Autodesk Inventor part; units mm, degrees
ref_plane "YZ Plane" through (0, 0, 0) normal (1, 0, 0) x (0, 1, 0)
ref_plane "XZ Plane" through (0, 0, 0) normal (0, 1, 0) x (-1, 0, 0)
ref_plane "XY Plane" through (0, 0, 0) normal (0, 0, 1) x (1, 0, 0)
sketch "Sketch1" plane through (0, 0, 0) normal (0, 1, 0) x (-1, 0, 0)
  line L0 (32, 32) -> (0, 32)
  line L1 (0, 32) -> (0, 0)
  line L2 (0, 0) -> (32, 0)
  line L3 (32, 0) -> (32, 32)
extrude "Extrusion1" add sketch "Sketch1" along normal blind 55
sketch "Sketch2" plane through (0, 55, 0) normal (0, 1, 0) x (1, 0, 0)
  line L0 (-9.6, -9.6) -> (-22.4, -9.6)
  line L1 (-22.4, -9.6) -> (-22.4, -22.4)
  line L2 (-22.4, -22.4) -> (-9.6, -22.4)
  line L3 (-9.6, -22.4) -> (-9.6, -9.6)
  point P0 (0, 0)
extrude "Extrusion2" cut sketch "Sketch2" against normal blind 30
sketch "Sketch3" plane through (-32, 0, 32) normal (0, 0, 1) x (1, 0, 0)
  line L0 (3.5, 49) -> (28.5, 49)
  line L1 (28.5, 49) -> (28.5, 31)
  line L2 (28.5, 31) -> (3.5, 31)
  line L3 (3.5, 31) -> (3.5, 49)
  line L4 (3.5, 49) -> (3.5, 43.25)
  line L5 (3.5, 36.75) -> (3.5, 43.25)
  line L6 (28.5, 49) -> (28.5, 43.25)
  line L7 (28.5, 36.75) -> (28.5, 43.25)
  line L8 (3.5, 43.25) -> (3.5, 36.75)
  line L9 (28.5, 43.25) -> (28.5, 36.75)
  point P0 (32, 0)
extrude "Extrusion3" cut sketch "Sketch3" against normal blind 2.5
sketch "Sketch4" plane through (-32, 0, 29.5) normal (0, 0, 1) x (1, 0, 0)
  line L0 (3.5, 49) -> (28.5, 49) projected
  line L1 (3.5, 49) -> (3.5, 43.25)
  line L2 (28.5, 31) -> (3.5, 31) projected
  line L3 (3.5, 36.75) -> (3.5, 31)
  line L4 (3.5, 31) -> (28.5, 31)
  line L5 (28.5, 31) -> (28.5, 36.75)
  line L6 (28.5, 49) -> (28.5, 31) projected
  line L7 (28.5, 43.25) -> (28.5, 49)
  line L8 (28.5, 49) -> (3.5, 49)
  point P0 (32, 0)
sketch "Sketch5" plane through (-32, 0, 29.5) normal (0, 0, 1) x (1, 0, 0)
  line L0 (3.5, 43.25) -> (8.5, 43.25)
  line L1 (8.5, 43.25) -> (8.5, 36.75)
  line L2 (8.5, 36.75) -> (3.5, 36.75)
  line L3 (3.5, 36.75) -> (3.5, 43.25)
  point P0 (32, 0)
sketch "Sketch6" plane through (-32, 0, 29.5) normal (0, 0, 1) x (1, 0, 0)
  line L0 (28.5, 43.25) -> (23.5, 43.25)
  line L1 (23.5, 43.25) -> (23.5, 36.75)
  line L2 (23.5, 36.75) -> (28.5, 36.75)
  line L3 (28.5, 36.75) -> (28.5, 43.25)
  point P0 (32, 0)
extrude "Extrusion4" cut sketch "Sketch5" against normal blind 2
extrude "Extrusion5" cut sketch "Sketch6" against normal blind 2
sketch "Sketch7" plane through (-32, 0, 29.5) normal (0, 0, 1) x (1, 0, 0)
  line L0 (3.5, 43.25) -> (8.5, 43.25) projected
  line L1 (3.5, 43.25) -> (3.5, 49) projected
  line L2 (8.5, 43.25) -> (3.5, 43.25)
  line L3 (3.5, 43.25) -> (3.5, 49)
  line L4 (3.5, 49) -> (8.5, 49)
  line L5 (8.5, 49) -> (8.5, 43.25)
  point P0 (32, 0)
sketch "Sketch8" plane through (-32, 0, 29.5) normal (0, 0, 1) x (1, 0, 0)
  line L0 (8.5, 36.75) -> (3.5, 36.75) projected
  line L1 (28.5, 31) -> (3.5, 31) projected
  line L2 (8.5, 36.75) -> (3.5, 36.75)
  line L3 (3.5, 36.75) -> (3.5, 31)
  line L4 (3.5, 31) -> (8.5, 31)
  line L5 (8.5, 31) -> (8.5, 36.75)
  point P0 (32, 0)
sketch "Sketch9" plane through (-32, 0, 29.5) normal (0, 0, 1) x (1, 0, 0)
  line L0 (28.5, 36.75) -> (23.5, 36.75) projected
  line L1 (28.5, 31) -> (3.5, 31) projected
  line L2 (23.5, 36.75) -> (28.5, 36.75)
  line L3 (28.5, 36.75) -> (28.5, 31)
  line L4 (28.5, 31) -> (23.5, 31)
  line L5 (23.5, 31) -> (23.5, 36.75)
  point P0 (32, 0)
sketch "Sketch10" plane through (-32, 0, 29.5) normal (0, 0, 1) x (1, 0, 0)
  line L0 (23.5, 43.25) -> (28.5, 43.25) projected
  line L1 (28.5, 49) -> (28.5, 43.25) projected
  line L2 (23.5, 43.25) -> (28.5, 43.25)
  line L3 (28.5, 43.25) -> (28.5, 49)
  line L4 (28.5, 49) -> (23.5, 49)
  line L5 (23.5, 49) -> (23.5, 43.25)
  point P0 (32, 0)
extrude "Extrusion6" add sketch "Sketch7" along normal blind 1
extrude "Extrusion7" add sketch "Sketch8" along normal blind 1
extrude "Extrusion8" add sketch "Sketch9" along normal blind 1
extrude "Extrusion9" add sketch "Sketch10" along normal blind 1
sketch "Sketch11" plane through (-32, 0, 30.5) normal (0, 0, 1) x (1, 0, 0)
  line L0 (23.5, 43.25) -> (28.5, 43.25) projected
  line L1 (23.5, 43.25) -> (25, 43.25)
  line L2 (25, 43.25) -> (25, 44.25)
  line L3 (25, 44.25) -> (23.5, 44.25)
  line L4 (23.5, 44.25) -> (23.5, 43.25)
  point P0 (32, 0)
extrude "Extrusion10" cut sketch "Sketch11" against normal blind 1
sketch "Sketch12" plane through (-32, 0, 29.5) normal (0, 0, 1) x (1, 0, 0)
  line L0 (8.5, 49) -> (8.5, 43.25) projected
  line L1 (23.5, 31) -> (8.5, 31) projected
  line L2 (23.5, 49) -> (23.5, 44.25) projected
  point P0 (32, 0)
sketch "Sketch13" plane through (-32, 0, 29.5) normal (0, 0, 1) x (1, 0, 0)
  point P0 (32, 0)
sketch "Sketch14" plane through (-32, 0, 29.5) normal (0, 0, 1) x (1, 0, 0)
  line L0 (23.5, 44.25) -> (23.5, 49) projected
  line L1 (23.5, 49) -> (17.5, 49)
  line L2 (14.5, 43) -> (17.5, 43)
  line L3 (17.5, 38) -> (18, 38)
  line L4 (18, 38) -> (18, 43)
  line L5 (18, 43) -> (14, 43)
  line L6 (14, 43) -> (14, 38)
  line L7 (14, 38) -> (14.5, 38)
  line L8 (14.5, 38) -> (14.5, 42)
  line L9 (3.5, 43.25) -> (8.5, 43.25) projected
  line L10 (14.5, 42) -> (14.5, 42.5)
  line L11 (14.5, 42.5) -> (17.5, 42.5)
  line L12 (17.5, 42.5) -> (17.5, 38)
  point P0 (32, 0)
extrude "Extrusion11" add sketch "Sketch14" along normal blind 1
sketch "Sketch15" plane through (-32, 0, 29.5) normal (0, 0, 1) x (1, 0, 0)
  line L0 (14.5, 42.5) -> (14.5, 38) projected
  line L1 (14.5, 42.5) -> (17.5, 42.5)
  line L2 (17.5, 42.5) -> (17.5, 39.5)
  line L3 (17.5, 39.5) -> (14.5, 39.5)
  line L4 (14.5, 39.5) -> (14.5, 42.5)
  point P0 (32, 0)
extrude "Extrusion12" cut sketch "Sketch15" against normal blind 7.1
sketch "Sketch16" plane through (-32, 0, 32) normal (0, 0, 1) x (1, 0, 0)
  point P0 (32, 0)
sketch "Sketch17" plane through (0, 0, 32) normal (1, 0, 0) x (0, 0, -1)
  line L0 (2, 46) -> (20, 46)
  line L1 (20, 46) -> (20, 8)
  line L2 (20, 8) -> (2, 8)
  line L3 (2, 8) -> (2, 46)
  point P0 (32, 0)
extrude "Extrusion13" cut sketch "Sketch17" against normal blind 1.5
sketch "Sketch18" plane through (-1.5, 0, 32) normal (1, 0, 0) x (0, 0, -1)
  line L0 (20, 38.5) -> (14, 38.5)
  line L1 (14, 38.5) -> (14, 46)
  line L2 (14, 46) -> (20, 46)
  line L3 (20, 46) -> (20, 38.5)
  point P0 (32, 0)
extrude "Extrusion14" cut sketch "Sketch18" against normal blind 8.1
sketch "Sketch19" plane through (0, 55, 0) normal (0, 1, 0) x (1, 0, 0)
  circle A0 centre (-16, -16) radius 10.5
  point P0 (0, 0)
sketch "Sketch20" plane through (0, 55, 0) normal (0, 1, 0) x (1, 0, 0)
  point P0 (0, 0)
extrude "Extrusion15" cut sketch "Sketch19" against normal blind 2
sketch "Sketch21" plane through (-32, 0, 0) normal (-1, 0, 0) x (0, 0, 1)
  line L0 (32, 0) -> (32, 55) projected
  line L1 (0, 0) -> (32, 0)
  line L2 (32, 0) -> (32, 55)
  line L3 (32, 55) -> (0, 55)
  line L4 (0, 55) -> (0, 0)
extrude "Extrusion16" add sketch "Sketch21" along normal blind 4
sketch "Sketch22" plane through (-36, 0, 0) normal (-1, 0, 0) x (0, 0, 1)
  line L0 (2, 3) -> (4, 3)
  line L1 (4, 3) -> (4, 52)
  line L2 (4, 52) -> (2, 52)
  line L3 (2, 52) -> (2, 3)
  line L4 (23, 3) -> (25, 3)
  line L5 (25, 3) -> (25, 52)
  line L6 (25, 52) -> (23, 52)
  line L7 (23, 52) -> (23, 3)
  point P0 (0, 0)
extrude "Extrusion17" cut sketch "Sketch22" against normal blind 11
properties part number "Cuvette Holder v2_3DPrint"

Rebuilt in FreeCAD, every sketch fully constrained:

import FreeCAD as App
import Part
import Sketcher

V = App.Vector


def add_polygon(sketch, points):
    """Adds a closed chain of lines whose ends are joined by coincident constraints."""
    first, n = sketch.GeometryCount, len(points)
    for a, b in zip(points, points[1:] + points[:1]):
        sketch.addGeometry(Part.LineSegment(App.Vector(*a, 0), App.Vector(*b, 0)), False)
    for i in range(n):
        sketch.addConstraint(Sketcher.Constraint("Coincident", first + i, 2, first + (i + 1) % n, 1))

doc = App.newDocument("Part")
body = doc.addObject("PartDesign::Body", "Body")

sketch1 = body.newObject("Sketcher::SketchObject", "Sketch")
sketch1.AttachmentSupport = (doc.getObject("XZ_Plane"), [""])
sketch1.MapMode = "FlatFace"
add_polygon(sketch1, [(-32, 0), (-32, 32), (0, 32), (0, 0)])
sketch1.addConstraint(Sketcher.Constraint("Vertical", 0))
sketch1.addConstraint(Sketcher.Constraint("Horizontal", 1))
sketch1.addConstraint(Sketcher.Constraint("Vertical", 2))
sketch1.addConstraint(Sketcher.Constraint("Horizontal", 3))
sketch1.addConstraint(Sketcher.Constraint("Coincident", 2, 2, -1, 1))
sketch1.addConstraint(Sketcher.Constraint("Equal", 3, 0))
sketch1.addConstraint(Sketcher.Constraint("DistanceX", 1, 1, 1, 2, 32.0))
pad1 = body.newObject("PartDesign::Pad", "Pad")
pad1.Profile = sketch1
pad1.Length = 55
pad1.Reversed = True

sketch2 = body.newObject("Sketcher::SketchObject", "Sketch001")
sketch2.AttachmentSupport = (doc.getObject("XZ_Plane"), [""])
sketch2.MapMode = "FlatFace"
sketch2.AttachmentOffset = App.Placement(V(0, 0, -55), App.Rotation())
add_polygon(sketch2, [(-10, 22), (-10, 10), (-22, 10), (-22, 22)])
sketch2.addConstraint(Sketcher.Constraint("Vertical", 0))
sketch2.addConstraint(Sketcher.Constraint("Horizontal", 1))
sketch2.addConstraint(Sketcher.Constraint("Vertical", 2))
sketch2.addConstraint(Sketcher.Constraint("Horizontal", 3))
sketch2.addConstraint(Sketcher.Constraint("Equal", 3, 0))
sketch2.addConstraint(Sketcher.Constraint("DistanceX", 1, 2, 1, 1, 12.8))
sketch2.addConstraint(Sketcher.Constraint("DistanceX", 0, 2, -1, 1, 9.6))
sketch2.addConstraint(Sketcher.Constraint("DistanceY", -1, 1, 0, 2, 9.6))
pocket1 = body.newObject("PartDesign::Pocket", "Pocket")
pocket1.Profile = sketch2
pocket1.Length = 30
pocket1.Reversed = True

sketch3 = body.newObject("Sketcher::SketchObject", "Sketch002")
sketch3.AttachmentSupport = (doc.getObject("XY_Plane"), [""])
sketch3.MapMode = "FlatFace"
sketch3.AttachmentOffset = App.Placement(V(0, 0, 32), App.Rotation())
add_polygon(sketch3, [(-4, 49), (-28, 49), (-28, 31), (-4, 31)])
sketch3.addConstraint(Sketcher.Constraint("Horizontal", 0))
sketch3.addConstraint(Sketcher.Constraint("Vertical", 1))
sketch3.addConstraint(Sketcher.Constraint("Horizontal", 2))
sketch3.addConstraint(Sketcher.Constraint("Vertical", 3))
sketch3.addConstraint(Sketcher.Constraint("DistanceX", 0, 2, 0, 1, 25.0))
sketch3.addConstraint(Sketcher.Constraint("DistanceY", 1, 2, 1, 1, 18.0))
sketch3.addConstraint(Sketcher.Constraint("DistanceY", -1, 1, 0, 2, 49.0))
sketch3.addConstraint(Sketcher.Constraint("DistanceX", 0, 2, -1, 1, 28.5))
pocket2 = body.newObject("PartDesign::Pocket", "Pocket001")
pocket2.Profile = sketch3
pocket2.Length = 2.5

sketch4 = body.newObject("Sketcher::SketchObject", "Sketch003")
sketch4.AttachmentSupport = (doc.getObject("XY_Plane"), [""])
sketch4.MapMode = "FlatFace"
sketch4.AttachmentOffset = App.Placement(V(0, 0, 29.5), App.Rotation())
add_polygon(sketch4, [(-24, 43), (-28, 43), (-28, 37), (-24, 37)])
sketch4.addConstraint(Sketcher.Constraint("Horizontal", 0))
sketch4.addConstraint(Sketcher.Constraint("Vertical", 1))
sketch4.addConstraint(Sketcher.Constraint("Horizontal", 2))
sketch4.addConstraint(Sketcher.Constraint("Vertical", 3))
sketch4.addConstraint(Sketcher.Constraint("DistanceX", 0, 2, 0, 1, 5.0))
sketch4.addConstraint(Sketcher.Constraint("DistanceY", 1, 2, 1, 1, 6.5))
sketch4.addConstraint(Sketcher.Constraint("DistanceX", 0, 2, -1, 1, 28.5))
sketch4.addConstraint(Sketcher.Constraint("DistanceY", -1, 1, 0, 2, 43.25))
pocket3 = body.newObject("PartDesign::Pocket", "Pocket002")
pocket3.Profile = sketch4
pocket3.Length = 2

sketch5 = body.newObject("Sketcher::SketchObject", "Sketch004")
sketch5.AttachmentSupport = (doc.getObject("XY_Plane"), [""])
sketch5.MapMode = "FlatFace"
sketch5.AttachmentOffset = App.Placement(V(0, 0, 29.5), App.Rotation())
add_polygon(sketch5, [(-4, 37), (-4, 43), (-8, 43), (-8, 37)])
sketch5.addConstraint(Sketcher.Constraint("Vertical", 0))
sketch5.addConstraint(Sketcher.Constraint("Horizontal", 1))
sketch5.addConstraint(Sketcher.Constraint("Vertical", 2))
sketch5.addConstraint(Sketcher.Constraint("Horizontal", 3))
sketch5.addConstraint(Sketcher.Constraint("DistanceX", 1, 2, 1, 1, 5.0))
sketch5.addConstraint(Sketcher.Constraint("DistanceY", 0, 1, 0, 2, 6.5))
sketch5.addConstraint(Sketcher.Constraint("DistanceX", 0, 2, -1, 1, 3.5))
sketch5.addConstraint(Sketcher.Constraint("DistanceY", -1, 1, 0, 2, 43.25))
pocket4 = body.newObject("PartDesign::Pocket", "Pocket003")
pocket4.Profile = sketch5
pocket4.Length = 2

sketch6 = body.newObject("Sketcher::SketchObject", "Sketch005")
sketch6.AttachmentSupport = (doc.getObject("XY_Plane"), [""])
sketch6.MapMode = "FlatFace"
sketch6.AttachmentOffset = App.Placement(V(0, 0, 29.5), App.Rotation())
add_polygon(sketch6, [(-28, 49), (-28, 43), (-24, 43), (-24, 49)])
sketch6.addConstraint(Sketcher.Constraint("Vertical", 0))
sketch6.addConstraint(Sketcher.Constraint("Horizontal", 1))
sketch6.addConstraint(Sketcher.Constraint("Vertical", 2))
sketch6.addConstraint(Sketcher.Constraint("Horizontal", 3))
sketch6.addConstraint(Sketcher.Constraint("DistanceX", 1, 1, 1, 2, 5.0))
sketch6.addConstraint(Sketcher.Constraint("DistanceY", -1, 1, 2, 2, 49.0))
sketch6.addConstraint(Sketcher.Constraint("DistanceY", 0, 2, 0, 1, 5.75))
sketch6.addConstraint(Sketcher.Constraint("DistanceX", 0, 2, -1, 1, 28.5))
pad2 = body.newObject("PartDesign::Pad", "Pad001")
pad2.Profile = sketch6
pad2.Length = 1

sketch7 = body.newObject("Sketcher::SketchObject", "Sketch006")
sketch7.AttachmentSupport = (doc.getObject("XY_Plane"), [""])
sketch7.MapMode = "FlatFace"
sketch7.AttachmentOffset = App.Placement(V(0, 0, 29.5), App.Rotation())
add_polygon(sketch7, [(-24, 31), (-24, 37), (-28, 37), (-28, 31)])
sketch7.addConstraint(Sketcher.Constraint("Vertical", 0))
sketch7.addConstraint(Sketcher.Constraint("Horizontal", 1))
sketch7.addConstraint(Sketcher.Constraint("Vertical", 2))
sketch7.addConstraint(Sketcher.Constraint("Horizontal", 3))
sketch7.addConstraint(Sketcher.Constraint("DistanceX", 1, 2, 1, 1, 5.0))
sketch7.addConstraint(Sketcher.Constraint("DistanceY", -1, 1, 2, 2, 31.0))
sketch7.addConstraint(Sketcher.Constraint("DistanceY", 0, 1, 0, 2, 5.75))
sketch7.addConstraint(Sketcher.Constraint("DistanceX", 0, 2, -1, 1, 23.5))
pad3 = body.newObject("PartDesign::Pad", "Pad002")
pad3.Profile = sketch7
pad3.Length = 1

sketch8 = body.newObject("Sketcher::SketchObject", "Sketch007")
sketch8.AttachmentSupport = (doc.getObject("XY_Plane"), [""])
sketch8.MapMode = "FlatFace"
sketch8.AttachmentOffset = App.Placement(V(0, 0, 29.5), App.Rotation())
add_polygon(sketch8, [(-4, 31), (-4, 37), (-8, 37), (-8, 31)])
sketch8.addConstraint(Sketcher.Constraint("Vertical", 0))
sketch8.addConstraint(Sketcher.Constraint("Horizontal", 1))
sketch8.addConstraint(Sketcher.Constraint("Vertical", 2))
sketch8.addConstraint(Sketcher.Constraint("Horizontal", 3))
sketch8.addConstraint(Sketcher.Constraint("DistanceX", 1, 2, 1, 1, 5.0))
sketch8.addConstraint(Sketcher.Constraint("DistanceY", -1, 1, 2, 2, 31.0))
sketch8.addConstraint(Sketcher.Constraint("DistanceY", 0, 1, 0, 2, 5.75))
sketch8.addConstraint(Sketcher.Constraint("DistanceX", 0, 2, -1, 1, 3.5))
pad4 = body.newObject("PartDesign::Pad", "Pad003")
pad4.Profile = sketch8
pad4.Length = 1

sketch9 = body.newObject("Sketcher::SketchObject", "Sketch008")
sketch9.AttachmentSupport = (doc.getObject("XY_Plane"), [""])
sketch9.MapMode = "FlatFace"
sketch9.AttachmentOffset = App.Placement(V(0, 0, 29.5), App.Rotation())
add_polygon(sketch9, [(-8, 49), (-8, 43), (-4, 43), (-4, 49)])
sketch9.addConstraint(Sketcher.Constraint("Vertical", 0))
sketch9.addConstraint(Sketcher.Constraint("Horizontal", 1))
sketch9.addConstraint(Sketcher.Constraint("Vertical", 2))
sketch9.addConstraint(Sketcher.Constraint("Horizontal", 3))
sketch9.addConstraint(Sketcher.Constraint("DistanceX", 1, 1, 1, 2, 5.0))
sketch9.addConstraint(Sketcher.Constraint("DistanceY", -1, 1, 2, 2, 49.0))
sketch9.addConstraint(Sketcher.Constraint("DistanceY", 0, 2, 0, 1, 5.75))
sketch9.addConstraint(Sketcher.Constraint("DistanceX", 0, 2, -1, 1, 8.5))
pad5 = body.newObject("PartDesign::Pad", "Pad004")
pad5.Profile = sketch9
pad5.Length = 1

sketch10 = body.newObject("Sketcher::SketchObject", "Sketch009")
sketch10.AttachmentSupport = (doc.getObject("XY_Plane"), [""])
sketch10.MapMode = "FlatFace"
sketch10.AttachmentOffset = App.Placement(V(0, 0, 30.5), App.Rotation())
add_polygon(sketch10, [(-8.5, 44.2), (-8.5, 43.2), (-7, 43.2), (-7, 44.2)])
sketch10.addConstraint(Sketcher.Constraint("Vertical", 0))
sketch10.addConstraint(Sketcher.Constraint("Horizontal", 1))
sketch10.addConstraint(Sketcher.Constraint("Vertical", 2))
sketch10.addConstraint(Sketcher.Constraint("Horizontal", 3))
sketch10.addConstraint(Sketcher.Constraint("DistanceY", 0, 2, 0, 1, 1.0))
sketch10.addConstraint(Sketcher.Constraint("DistanceX", 1, 1, 1, 2, 1.5))
sketch10.addConstraint(Sketcher.Constraint("DistanceX", 1, 2, -1, 1, 7.0))
sketch10.addConstraint(Sketcher.Constraint("DistanceY", -1, 1, 0, 2, 43.25))
pocket5 = body.newObject("PartDesign::Pocket", "Pocket004")
pocket5.Profile = sketch10
pocket5.Length = 1

sketch11 = body.newObject("Sketcher::SketchObject", "Sketch010")
sketch11.AttachmentSupport = (doc.getObject("XY_Plane"), [""])
sketch11.MapMode = "FlatFace"
sketch11.AttachmentOffset = App.Placement(V(0, 0, 29.5), App.Rotation())
add_polygon(sketch11, [(-14, 43), (-18, 43), (-18, 38), (-17.5, 38), (-17.5, 42.5), (-14.5, 42.5), (-14.5, 38), (-14, 38)])
sketch11.addConstraint(Sketcher.Constraint("Horizontal", 0))
sketch11.addConstraint(Sketcher.Constraint("Vertical", 1))
sketch11.addConstraint(Sketcher.Constraint("Horizontal", 2))
sketch11.addConstraint(Sketcher.Constraint("Vertical", 3))
sketch11.addConstraint(Sketcher.Constraint("Horizontal", 4))
sketch11.addConstraint(Sketcher.Constraint("Vertical", 5))
sketch11.addConstraint(Sketcher.Constraint("Horizontal", 6))
sketch11.addConstraint(Sketcher.Constraint("Vertical", 7))
sketch11.addConstraint(Sketcher.Constraint("Horizontal", 2, 2, 5, 2))
sketch11.addConstraint(Sketcher.Constraint("Equal", 2, 6))
sketch11.addConstraint(Sketcher.Constraint("DistanceX", 0, 2, 0, 1, 4.0))
sketch11.addConstraint(Sketcher.Constraint("DistanceX", 4, 1, 4, 2, 3.0))
sketch11.addConstraint(Sketcher.Constraint("DistanceY", 1, 2, 1, 1, 5.0))
sketch11.addConstraint(Sketcher.Constraint("DistanceY", 3, 1, 3, 2, 4.5))
sketch11.addConstraint(Sketcher.Constraint("DistanceX", 0, 2, -1, 1, 18.0))
sketch11.addConstraint(Sketcher.Constraint("DistanceY", -1, 1, 0, 2, 43.0))
pad6 = body.newObject("PartDesign::Pad", "Pad005")
pad6.Profile = sketch11
pad6.Length = 1

sketch12 = body.newObject("Sketcher::SketchObject", "Sketch011")
sketch12.AttachmentSupport = (doc.getObject("XY_Plane"), [""])
sketch12.MapMode = "FlatFace"
sketch12.AttachmentOffset = App.Placement(V(0, 0, 29.5), App.Rotation())
add_polygon(sketch12, [(-14.5, 42.5), (-17.5, 42.5), (-17.5, 39.5), (-14.5, 39.5)])
sketch12.addConstraint(Sketcher.Constraint("Horizontal", 0))
sketch12.addConstraint(Sketcher.Constraint("Vertical", 1))
sketch12.addConstraint(Sketcher.Constraint("Horizontal", 2))
sketch12.addConstraint(Sketcher.Constraint("Vertical", 3))
sketch12.addConstraint(Sketcher.Constraint("Equal", 2, 1))
sketch12.addConstraint(Sketcher.Constraint("DistanceX", 0, 2, 0, 1, 3.0))
sketch12.addConstraint(Sketcher.Constraint("DistanceX", 0, 2, -1, 1, 17.5))
sketch12.addConstraint(Sketcher.Constraint("DistanceY", -1, 1, 0, 2, 42.5))
pocket6 = body.newObject("PartDesign::Pocket", "Pocket005")
pocket6.Profile = sketch12
pocket6.Length = 7.1

sketch13 = body.newObject("Sketcher::SketchObject", "Sketch012")
sketch13.AttachmentSupport = (doc.getObject("YZ_Plane"), [""])
sketch13.MapMode = "FlatFace"
add_polygon(sketch13, [(46, 12), (46, 30), (8, 30), (8, 12)])
sketch13.addConstraint(Sketcher.Constraint("Vertical", 0))
sketch13.addConstraint(Sketcher.Constraint("Horizontal", 1))
sketch13.addConstraint(Sketcher.Constraint("Vertical", 2))
sketch13.addConstraint(Sketcher.Constraint("Horizontal", 3))
sketch13.addConstraint(Sketcher.Constraint("DistanceX", 1, 2, 1, 1, 38.0))
sketch13.addConstraint(Sketcher.Constraint("DistanceY", 0, 1, 0, 2, 18.0))
sketch13.addConstraint(Sketcher.Constraint("DistanceX", -1, 1, 0, 2, 46.0))
sketch13.addConstraint(Sketcher.Constraint("DistanceY", -1, 1, 0, 2, 30.0))
pocket7 = body.newObject("PartDesign::Pocket", "Pocket006")
pocket7.Profile = sketch13
pocket7.Length = 1.5

sketch14 = body.newObject("Sketcher::SketchObject", "Sketch013")
sketch14.AttachmentSupport = (doc.getObject("YZ_Plane"), [""])
sketch14.MapMode = "FlatFace"
sketch14.AttachmentOffset = App.Placement(V(0, 0, -1.5), App.Rotation())
add_polygon(sketch14, [(38, 18), (38, 12), (46, 12), (46, 18)])
sketch14.addConstraint(Sketcher.Constraint("Vertical", 0))
sketch14.addConstraint(Sketcher.Constraint("Horizontal", 1))
sketch14.addConstraint(Sketcher.Constraint("Vertical", 2))
sketch14.addConstraint(Sketcher.Constraint("Horizontal", 3))
sketch14.addConstraint(Sketcher.Constraint("DistanceY", 0, 2, 0, 1, 6.0))
sketch14.addConstraint(Sketcher.Constraint("DistanceX", 1, 1, 1, 2, 7.5))
sketch14.addConstraint(Sketcher.Constraint("DistanceY", -1, 1, 0, 2, 12.0))
sketch14.addConstraint(Sketcher.Constraint("DistanceX", -1, 1, 1, 2, 46.0))
pocket8 = body.newObject("PartDesign::Pocket", "Pocket007")
pocket8.Profile = sketch14
pocket8.Length = 8.1

sketch15 = body.newObject("Sketcher::SketchObject", "Sketch014")
sketch15.AttachmentSupport = (doc.getObject("XZ_Plane"), [""])
sketch15.MapMode = "FlatFace"
sketch15.AttachmentOffset = App.Placement(V(0, 0, -55), App.Rotation())
sketch15.addGeometry(Part.Circle(V(-16, 16, 0), V(0, 0, 1), 10), False)
sketch15.addConstraint(Sketcher.Constraint("Diameter", 0, 21.0))
sketch15.addConstraint(Sketcher.Constraint("DistanceX", 0, 3, -1, 1, 16.0))
sketch15.addConstraint(Sketcher.Constraint("DistanceY", -1, 1, 0, 3, 16.0))
pocket9 = body.newObject("PartDesign::Pocket", "Pocket008")
pocket9.Profile = sketch15
pocket9.Length = 2
pocket9.Reversed = True

sketch16 = body.newObject("Sketcher::SketchObject", "Sketch015")
sketch16.AttachmentSupport = (doc.getObject("YZ_Plane"), [""])
sketch16.MapMode = "FlatFace"
sketch16.AttachmentOffset = App.Placement(V(0, 0, -32), App.Rotation())
add_polygon(sketch16, [(0, 0), (0, 32), (55, 32), (55, 0)])
sketch16.addConstraint(Sketcher.Constraint("Vertical", 0))
sketch16.addConstraint(Sketcher.Constraint("Horizontal", 1))
sketch16.addConstraint(Sketcher.Constraint("Vertical", 2))
sketch16.addConstraint(Sketcher.Constraint("Horizontal", 3))
sketch16.addConstraint(Sketcher.Constraint("Coincident", 3, 2, -1, 1))
sketch16.addConstraint(Sketcher.Constraint("DistanceX", 1, 1, 1, 2, 55.0))
sketch16.addConstraint(Sketcher.Constraint("DistanceY", 0, 1, 0, 2, 32.0))
pad7 = body.newObject("PartDesign::Pad", "Pad006")
pad7.Profile = sketch16
pad7.Length = 4
pad7.Reversed = True

sketch17 = body.newObject("Sketcher::SketchObject", "Sketch016")
sketch17.AttachmentSupport = (doc.getObject("YZ_Plane"), [""])
sketch17.MapMode = "FlatFace"
sketch17.AttachmentOffset = App.Placement(V(0, 0, -36), App.Rotation())
add_polygon(sketch17, [(52, 2), (3, 2), (3, 4), (52, 4)])
add_polygon(sketch17, [(52, 23), (3, 23), (3, 25), (52, 25)])
sketch17.addConstraint(Sketcher.Constraint("Horizontal", 0))
sketch17.addConstraint(Sketcher.Constraint("Vertical", 1))
sketch17.addConstraint(Sketcher.Constraint("Horizontal", 2))
sketch17.addConstraint(Sketcher.Constraint("Vertical", 3))
sketch17.addConstraint(Sketcher.Constraint("Horizontal", 4))
sketch17.addConstraint(Sketcher.Constraint("Vertical", 5))
sketch17.addConstraint(Sketcher.Constraint("Horizontal", 6))
sketch17.addConstraint(Sketcher.Constraint("Vertical", 7))
sketch17.addConstraint(Sketcher.Constraint("Vertical", 1, 2, 4, 2))
sketch17.addConstraint(Sketcher.Constraint("Vertical", 3, 2, 6, 2))
sketch17.addConstraint(Sketcher.Constraint("Equal", 3, 5))
sketch17.addConstraint(Sketcher.Constraint("DistanceX", 0, 2, 0, 1, 49.0))
sketch17.addConstraint(Sketcher.Constraint("DistanceY", 1, 1, 1, 2, 2.0))
sketch17.addConstraint(Sketcher.Constraint("DistanceX", -1, 1, 0, 2, 3.0))
sketch17.addConstraint(Sketcher.Constraint("DistanceY", -1, 1, 0, 2, 2.0))
sketch17.addConstraint(Sketcher.Constraint("DistanceY", -1, 1, 4, 2, 23.0))
pocket10 = body.newObject("PartDesign::Pocket", "Pocket009")
pocket10.Profile = sketch17
pocket10.Length = 11
pocket10.Reversed = True

doc.recompute()
